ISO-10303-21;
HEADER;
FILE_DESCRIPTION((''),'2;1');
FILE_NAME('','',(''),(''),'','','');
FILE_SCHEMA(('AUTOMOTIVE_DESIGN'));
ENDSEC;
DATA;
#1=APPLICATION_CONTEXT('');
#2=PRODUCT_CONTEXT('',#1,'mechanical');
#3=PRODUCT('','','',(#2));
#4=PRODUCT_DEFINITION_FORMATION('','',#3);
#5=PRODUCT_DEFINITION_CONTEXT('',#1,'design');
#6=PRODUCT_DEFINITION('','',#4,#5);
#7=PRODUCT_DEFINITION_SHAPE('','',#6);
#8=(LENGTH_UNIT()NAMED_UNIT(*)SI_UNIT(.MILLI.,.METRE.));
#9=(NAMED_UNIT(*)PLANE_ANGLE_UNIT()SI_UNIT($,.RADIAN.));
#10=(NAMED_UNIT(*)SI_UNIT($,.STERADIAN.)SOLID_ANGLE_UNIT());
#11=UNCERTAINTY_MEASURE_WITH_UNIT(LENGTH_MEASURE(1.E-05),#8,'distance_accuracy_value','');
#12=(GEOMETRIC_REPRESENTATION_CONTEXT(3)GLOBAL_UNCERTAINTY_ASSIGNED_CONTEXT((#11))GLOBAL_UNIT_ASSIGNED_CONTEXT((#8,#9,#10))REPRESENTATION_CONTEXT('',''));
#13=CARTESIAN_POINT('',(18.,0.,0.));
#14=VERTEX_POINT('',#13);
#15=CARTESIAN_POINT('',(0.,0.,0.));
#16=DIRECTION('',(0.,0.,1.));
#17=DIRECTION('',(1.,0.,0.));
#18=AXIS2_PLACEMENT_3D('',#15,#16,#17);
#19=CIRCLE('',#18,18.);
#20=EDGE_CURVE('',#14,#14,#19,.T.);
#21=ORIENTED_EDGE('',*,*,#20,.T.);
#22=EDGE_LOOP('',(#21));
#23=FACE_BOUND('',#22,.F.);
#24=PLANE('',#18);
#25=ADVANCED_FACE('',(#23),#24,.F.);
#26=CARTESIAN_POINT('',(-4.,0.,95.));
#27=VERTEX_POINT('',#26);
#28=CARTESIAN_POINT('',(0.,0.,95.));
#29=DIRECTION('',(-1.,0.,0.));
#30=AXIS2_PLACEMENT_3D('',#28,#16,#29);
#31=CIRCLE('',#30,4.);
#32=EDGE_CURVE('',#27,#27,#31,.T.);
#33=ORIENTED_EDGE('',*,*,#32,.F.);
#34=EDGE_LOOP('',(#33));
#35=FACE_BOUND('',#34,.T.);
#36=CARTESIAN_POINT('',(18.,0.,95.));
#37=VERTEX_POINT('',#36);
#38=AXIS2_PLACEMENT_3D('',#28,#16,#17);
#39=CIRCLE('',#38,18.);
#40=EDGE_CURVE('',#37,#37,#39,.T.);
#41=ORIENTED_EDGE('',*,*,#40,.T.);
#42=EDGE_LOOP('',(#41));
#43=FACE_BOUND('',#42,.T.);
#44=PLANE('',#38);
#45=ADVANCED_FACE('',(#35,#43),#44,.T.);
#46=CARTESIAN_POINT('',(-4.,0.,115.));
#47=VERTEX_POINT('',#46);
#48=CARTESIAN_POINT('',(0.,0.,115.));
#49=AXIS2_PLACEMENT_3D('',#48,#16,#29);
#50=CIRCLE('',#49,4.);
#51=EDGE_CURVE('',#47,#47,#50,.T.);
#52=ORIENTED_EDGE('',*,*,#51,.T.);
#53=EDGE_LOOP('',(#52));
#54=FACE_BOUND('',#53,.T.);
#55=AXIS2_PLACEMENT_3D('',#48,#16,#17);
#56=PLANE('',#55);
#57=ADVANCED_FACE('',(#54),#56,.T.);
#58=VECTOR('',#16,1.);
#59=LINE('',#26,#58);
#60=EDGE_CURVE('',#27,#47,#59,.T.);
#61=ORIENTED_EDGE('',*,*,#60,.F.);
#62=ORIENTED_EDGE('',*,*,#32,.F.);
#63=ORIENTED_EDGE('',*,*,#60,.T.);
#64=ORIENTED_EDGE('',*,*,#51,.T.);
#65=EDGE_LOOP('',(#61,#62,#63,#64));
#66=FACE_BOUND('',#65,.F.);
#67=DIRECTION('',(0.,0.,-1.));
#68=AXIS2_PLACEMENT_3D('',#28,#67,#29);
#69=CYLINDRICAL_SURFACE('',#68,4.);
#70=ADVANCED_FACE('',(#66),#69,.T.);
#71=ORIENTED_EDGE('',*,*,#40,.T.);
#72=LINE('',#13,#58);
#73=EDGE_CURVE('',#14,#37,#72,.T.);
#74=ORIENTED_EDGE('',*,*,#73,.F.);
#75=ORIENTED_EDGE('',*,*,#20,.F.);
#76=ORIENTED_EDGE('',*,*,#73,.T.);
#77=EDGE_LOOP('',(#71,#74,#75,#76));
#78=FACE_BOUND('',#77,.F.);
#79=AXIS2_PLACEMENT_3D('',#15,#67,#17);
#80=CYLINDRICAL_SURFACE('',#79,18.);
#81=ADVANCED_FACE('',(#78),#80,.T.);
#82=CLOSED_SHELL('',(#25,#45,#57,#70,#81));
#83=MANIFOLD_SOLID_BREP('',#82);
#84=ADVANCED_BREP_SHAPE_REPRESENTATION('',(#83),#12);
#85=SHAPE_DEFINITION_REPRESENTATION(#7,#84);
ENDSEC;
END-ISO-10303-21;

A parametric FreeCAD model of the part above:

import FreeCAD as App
import Part
import Sketcher

V = App.Vector
Q = App.Units.Quantity

doc = App.newDocument("Part")
body = doc.addObject("PartDesign::Body", "Body")

sketch1 = doc.addObject("Sketcher::SketchObject", "Sketch")
body.addObject(sketch1)
sketch1.AttachmentSupport = (doc.XY_Plane, [""])
sketch1.MapMode = "FlatFace"
sketch1.addGeometry(Part.Circle(V(0, 0, 0), V(0, 0, 1), 18), False)
sketch1.addConstraint(Sketcher.Constraint("Coincident", 0, 3, -1, 1))
sketch1.addConstraint(Sketcher.Constraint("Diameter", 0, Q("36 mm")))
pad1 = doc.addObject("PartDesign::Pad", "Pad")
body.addObject(pad1)
pad1.Profile = sketch1
pad1.Length = 95

sketch2 = doc.addObject("Sketcher::SketchObject", "Sketch001")
body.addObject(sketch2)
sketch2.AttachmentSupport = (doc.XY_Plane, [""])
sketch2.MapMode = "FlatFace"
sketch2.AttachmentOffset = App.Placement(V(0, 0, 95), App.Rotation())
sketch2.addGeometry(Part.Circle(V(0, 0, 0), V(0, 0, 1), 4), False)
sketch2.addConstraint(Sketcher.Constraint("Coincident", 0, 3, -1, 1))
sketch2.addConstraint(Sketcher.Constraint("Diameter", 0, Q("8 mm")))
pad2 = doc.addObject("PartDesign::Pad", "Pad001")
body.addObject(pad2)
pad2.Profile = sketch2
pad2.Length = 20

doc.recompute()
